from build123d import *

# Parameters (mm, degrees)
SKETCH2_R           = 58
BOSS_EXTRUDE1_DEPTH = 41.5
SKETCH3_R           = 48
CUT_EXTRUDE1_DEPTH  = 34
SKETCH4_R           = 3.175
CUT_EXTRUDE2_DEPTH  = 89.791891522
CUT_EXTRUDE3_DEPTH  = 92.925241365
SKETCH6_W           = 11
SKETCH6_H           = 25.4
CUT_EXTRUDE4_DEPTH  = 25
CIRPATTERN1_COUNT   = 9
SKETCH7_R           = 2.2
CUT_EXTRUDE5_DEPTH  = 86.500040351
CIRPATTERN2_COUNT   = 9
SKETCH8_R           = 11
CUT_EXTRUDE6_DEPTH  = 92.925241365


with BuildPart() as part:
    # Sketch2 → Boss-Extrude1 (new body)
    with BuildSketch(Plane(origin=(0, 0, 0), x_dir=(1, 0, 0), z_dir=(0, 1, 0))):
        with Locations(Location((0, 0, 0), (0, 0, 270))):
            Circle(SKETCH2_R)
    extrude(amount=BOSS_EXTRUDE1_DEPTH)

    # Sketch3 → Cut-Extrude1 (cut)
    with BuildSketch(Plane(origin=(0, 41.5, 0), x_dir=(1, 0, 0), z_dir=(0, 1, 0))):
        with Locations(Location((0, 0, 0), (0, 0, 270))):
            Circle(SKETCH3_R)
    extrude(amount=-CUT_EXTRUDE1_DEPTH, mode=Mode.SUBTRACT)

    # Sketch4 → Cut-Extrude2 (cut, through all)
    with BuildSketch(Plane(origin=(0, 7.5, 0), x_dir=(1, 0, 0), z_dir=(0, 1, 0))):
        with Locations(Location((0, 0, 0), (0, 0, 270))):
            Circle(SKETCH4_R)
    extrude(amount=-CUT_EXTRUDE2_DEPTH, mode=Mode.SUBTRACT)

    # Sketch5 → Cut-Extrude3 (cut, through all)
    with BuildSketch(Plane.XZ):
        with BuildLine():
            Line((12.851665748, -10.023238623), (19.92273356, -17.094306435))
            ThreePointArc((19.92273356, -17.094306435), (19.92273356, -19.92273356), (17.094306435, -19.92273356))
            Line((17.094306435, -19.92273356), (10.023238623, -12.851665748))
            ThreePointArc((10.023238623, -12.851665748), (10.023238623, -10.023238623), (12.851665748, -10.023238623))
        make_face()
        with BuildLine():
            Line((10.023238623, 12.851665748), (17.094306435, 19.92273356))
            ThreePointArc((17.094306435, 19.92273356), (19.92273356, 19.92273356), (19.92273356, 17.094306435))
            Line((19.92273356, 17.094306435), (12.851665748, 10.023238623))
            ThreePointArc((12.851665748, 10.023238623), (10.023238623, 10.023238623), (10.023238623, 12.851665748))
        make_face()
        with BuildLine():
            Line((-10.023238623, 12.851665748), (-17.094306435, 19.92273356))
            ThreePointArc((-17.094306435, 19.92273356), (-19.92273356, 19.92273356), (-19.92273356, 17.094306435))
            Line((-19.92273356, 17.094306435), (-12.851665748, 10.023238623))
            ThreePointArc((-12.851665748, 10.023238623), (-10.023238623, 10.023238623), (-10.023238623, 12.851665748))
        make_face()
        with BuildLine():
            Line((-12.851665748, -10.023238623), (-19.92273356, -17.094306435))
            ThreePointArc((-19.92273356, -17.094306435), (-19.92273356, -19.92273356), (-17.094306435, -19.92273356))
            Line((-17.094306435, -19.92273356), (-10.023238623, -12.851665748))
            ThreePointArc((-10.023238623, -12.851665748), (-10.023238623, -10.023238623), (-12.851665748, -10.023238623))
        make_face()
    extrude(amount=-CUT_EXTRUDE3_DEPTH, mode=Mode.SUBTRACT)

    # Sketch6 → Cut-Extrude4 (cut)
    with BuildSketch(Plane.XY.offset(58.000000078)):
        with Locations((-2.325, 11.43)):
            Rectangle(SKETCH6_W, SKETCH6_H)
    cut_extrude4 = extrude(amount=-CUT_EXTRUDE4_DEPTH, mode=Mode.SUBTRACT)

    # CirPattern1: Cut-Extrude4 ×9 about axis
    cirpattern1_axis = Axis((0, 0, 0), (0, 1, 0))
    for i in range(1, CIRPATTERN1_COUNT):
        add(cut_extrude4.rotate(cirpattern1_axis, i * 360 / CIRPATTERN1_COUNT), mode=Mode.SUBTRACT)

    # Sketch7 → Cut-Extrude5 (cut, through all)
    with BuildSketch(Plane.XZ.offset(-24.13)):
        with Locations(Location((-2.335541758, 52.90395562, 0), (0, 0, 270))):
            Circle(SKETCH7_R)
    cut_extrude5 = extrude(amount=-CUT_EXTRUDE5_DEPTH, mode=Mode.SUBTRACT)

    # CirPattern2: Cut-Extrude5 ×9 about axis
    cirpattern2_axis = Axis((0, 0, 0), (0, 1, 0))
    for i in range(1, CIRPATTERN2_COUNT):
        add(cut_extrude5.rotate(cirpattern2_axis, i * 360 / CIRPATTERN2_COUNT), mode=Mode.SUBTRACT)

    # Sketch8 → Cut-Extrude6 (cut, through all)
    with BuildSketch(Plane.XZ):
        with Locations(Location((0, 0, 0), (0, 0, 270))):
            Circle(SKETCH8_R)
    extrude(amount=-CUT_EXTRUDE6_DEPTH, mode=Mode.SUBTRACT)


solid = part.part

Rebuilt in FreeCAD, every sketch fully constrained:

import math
import FreeCAD as App
import Part
import Sketcher
from FreeCAD import Vector
Q = App.Units.Quantity


def add_polygon(sketch, points):
    """Adds a closed chain of lines whose ends are joined by coincident constraints."""
    first, n = sketch.GeometryCount, len(points)
    for a, b in zip(points, points[1:] + points[:1]):
        sketch.addGeometry(Part.LineSegment(App.Vector(*a, 0), App.Vector(*b, 0)), False)
    for i in range(n):
        sketch.addConstraint(Sketcher.Constraint("Coincident", first + i, 2, first + (i + 1) % n, 1))

doc = App.newDocument("Part")
body = doc.addObject("PartDesign::Body", "Body")

# Sketch on XZ plane
sketch1 = body.newObject("Sketcher::SketchObject", "Sketch")
sketch1.AttachmentSupport = (doc.getObject("XZ_Plane"), [""])
sketch1.MapMode = "FlatFace"
sketch1.addGeometry(Part.Circle(Vector(0, 0, 0), Vector(0, 0, 1), 58), False)
sketch1.addConstraint([
    Sketcher.Constraint("Coincident", 0, 3, -1, 1),
    Sketcher.Constraint("Diameter", 0, Q("116 mm")),
])
pad1 = body.newObject("PartDesign::Pad", "Pad")
pad1.Profile = sketch1
pad1.Length = 41.5
pad1.Reversed = True

# Sketch on XZ plane
sketch2 = body.newObject("Sketcher::SketchObject", "Sketch001")
sketch2.AttachmentSupport = (doc.getObject("XZ_Plane"), [""])
sketch2.MapMode = "FlatFace"
sketch2.AttachmentOffset = App.Placement(Vector(0, 0, -41.5), App.Rotation())
sketch2.addGeometry(Part.Circle(Vector(0, 0, 0), Vector(0, 0, 1), 48), False)
sketch2.addConstraint([
    Sketcher.Constraint("Coincident", 0, 3, -1, 1),
    Sketcher.Constraint("Diameter", 0, Q("96 mm")),
])
pocket1 = body.newObject("PartDesign::Pocket", "Pocket")
pocket1.Profile = sketch2
pocket1.Length = 34
pocket1.Reversed = True

# Sketch on XZ plane
sketch3 = body.newObject("Sketcher::SketchObject", "Sketch002")
sketch3.AttachmentSupport = (doc.getObject("XZ_Plane"), [""])
sketch3.MapMode = "FlatFace"
sketch3.AttachmentOffset = App.Placement(Vector(0, 0, -7.5), App.Rotation())
sketch3.addGeometry(Part.Circle(Vector(0, 0, 0), Vector(0, 0, 1), 3.2), False)
sketch3.addConstraint([
    Sketcher.Constraint("Coincident", 0, 3, -1, 1),
    Sketcher.Constraint("Diameter", 0, Q("6.35 mm")),
])
pocket2 = body.newObject("PartDesign::Pocket", "Pocket001")
pocket2.Profile = sketch3
pocket2.Type = "ThroughAll"
pocket2.Reversed = True

# Sketch on XZ plane
sketch4 = body.newObject("Sketcher::SketchObject", "Sketch003")
sketch4.AttachmentSupport = (doc.getObject("XZ_Plane"), [""])
sketch4.MapMode = "FlatFace"
sketch4.addGeometry([
    Part.LineSegment(Vector(19.9, -17.1, 0), Vector(12.9, -10, 0)),  # 0
    Part.ArcOfCircle(Part.Circle(Vector(11.4, -11.4, 0), Vector(0, 0, 1), 2), math.radians(45), math.radians(225)),  # 1
    Part.LineSegment(Vector(10, -12.9, 0), Vector(17.1, -19.9, 0)),  # 2
    Part.ArcOfCircle(Part.Circle(Vector(18.5, -18.5, 0), Vector(0, 0, 1), 2), math.radians(-135), math.radians(45)),  # 3
    Part.LineSegment(Vector(17.1, 19.9, 0), Vector(10, 12.9, 0)),  # 4
    Part.ArcOfCircle(Part.Circle(Vector(11.4, 11.4, 0), Vector(0, 0, 1), 2), math.radians(135), math.radians(315)),  # 5
    Part.LineSegment(Vector(12.9, 10, 0), Vector(19.9, 17.1, 0)),  # 6
    Part.ArcOfCircle(Part.Circle(Vector(18.5, 18.5, 0), Vector(0, 0, 1), 2), math.radians(-45), math.radians(135)),  # 7
    Part.LineSegment(Vector(-10, 12.9, 0), Vector(-17.1, 19.9, 0)),  # 8
    Part.ArcOfCircle(Part.Circle(Vector(-18.5, 18.5, 0), Vector(0, 0, 1), 2), math.radians(45), math.radians(225)),  # 9
    Part.LineSegment(Vector(-19.9, 17.1, 0), Vector(-12.9, 10, 0)),  # 10
    Part.ArcOfCircle(Part.Circle(Vector(-11.4, 11.4, 0), Vector(0, 0, 1), 2), math.radians(-135), math.radians(45)),  # 11
    Part.LineSegment(Vector(-12.9, -10, 0), Vector(-19.9, -17.1, 0)),  # 12
    Part.ArcOfCircle(Part.Circle(Vector(-18.5, -18.5, 0), Vector(0, 0, 1), 2), math.radians(135), math.radians(315)),  # 13
    Part.LineSegment(Vector(-17.1, -19.9, 0), Vector(-10, -12.9, 0)),  # 14
    Part.ArcOfCircle(Part.Circle(Vector(-11.4, -11.4, 0), Vector(0, 0, 1), 2), math.radians(-45), math.radians(135)),  # 15
], False)
sketch4.addConstraint([
    Sketcher.Constraint("Tangent", 0, 2, 1, 1),
    Sketcher.Constraint("Tangent", 1, 2, 2, 1),
    Sketcher.Constraint("Tangent", 2, 2, 3, 1),
    Sketcher.Constraint("Tangent", 3, 2, 0, 1),
    Sketcher.Constraint("Tangent", 4, 2, 5, 1),
    Sketcher.Constraint("Tangent", 5, 2, 6, 1),
    Sketcher.Constraint("Tangent", 6, 2, 7, 1),
    Sketcher.Constraint("Tangent", 7, 2, 4, 1),
    Sketcher.Constraint("Tangent", 8, 2, 9, 1),
    Sketcher.Constraint("Tangent", 9, 2, 10, 1),
    Sketcher.Constraint("Tangent", 10, 2, 11, 1),
    Sketcher.Constraint("Tangent", 11, 2, 8, 1),
    Sketcher.Constraint("Tangent", 12, 2, 13, 1),
    Sketcher.Constraint("Tangent", 13, 2, 14, 1),
    Sketcher.Constraint("Tangent", 14, 2, 15, 1),
    Sketcher.Constraint("Tangent", 15, 2, 12, 1),
    Sketcher.Constraint("Equal", 1, 3),
    Sketcher.Constraint("Equal", 3, 5),
    Sketcher.Constraint("Equal", 5, 7),
    Sketcher.Constraint("Equal", 7, 9),
    Sketcher.Constraint("Equal", 9, 11),
    Sketcher.Constraint("Equal", 11, 13),
    Sketcher.Constraint("Equal", 13, 15),
    Sketcher.Constraint("Symmetric", 3, 3, 9, 3, -1, 1),
    Sketcher.Constraint("Symmetric", 1, 3, 11, 3, -1, 1),
    Sketcher.Constraint("Symmetric", 7, 3, 13, 3, -1, 1),
    Sketcher.Constraint("Symmetric", 5, 3, 15, 3, -1, 1),
    Sketcher.Constraint("Symmetric", 7, 3, 9, 3, -2),
    Sketcher.Constraint("Symmetric", 5, 3, 11, 3, -2),
    Sketcher.Constraint("Perpendicular", 2, 4),
    Sketcher.Constraint("Radius", 1, Q("2 mm")),
    Sketcher.Constraint("Distance", 0, Q("10 mm")),
    Sketcher.Constraint("DistanceX", -1, 1, 3, 3, Q("18.50852 mm")),
    Sketcher.Constraint("DistanceY", 3, 3, -1, 1, Q("18.50852 mm")),
])
pocket3 = body.newObject("PartDesign::Pocket", "Pocket002")
pocket3.Profile = sketch4
pocket3.Type = "ThroughAll"

# Sketch on XY plane
sketch5 = body.newObject("Sketcher::SketchObject", "Sketch004")
sketch5.AttachmentSupport = (doc.getObject("XY_Plane"), [""])
sketch5.MapMode = "FlatFace"
sketch5.AttachmentOffset = App.Placement(Vector(0, 0, 58), App.Rotation())
add_polygon(sketch5, [(-8, 24), (-8, -1), (3, -1), (3, 24)])  # lines 0-3
sketch5.addConstraint([
    Sketcher.Constraint("Vertical", 0),
    Sketcher.Constraint("Horizontal", 1),
    Sketcher.Constraint("Vertical", 2),
    Sketcher.Constraint("Horizontal", 3),
    Sketcher.Constraint("DistanceX", 1, 1, 1, 2, Q("11 mm")),
    Sketcher.Constraint("DistanceY", 0, 2, 0, 1, Q("25.4 mm")),
    Sketcher.Constraint("DistanceY", 0, 2, -1, 1, Q("1.27 mm")),
    Sketcher.Constraint("DistanceX", 0, 2, -1, 1, Q("7.825 mm")),
])
pocket4 = body.newObject("PartDesign::Pocket", "Pocket003")
pocket4.Profile = sketch5
pocket4.Length = 25
doc.recompute()

polarpattern = body.newObject("PartDesign::PolarPattern", "PolarPattern")
polarpattern.Originals = [pocket4]
polarpattern.Axis = (doc.getObject("Y_Axis"), [""])
polarpattern.Angle = 360
polarpattern.Occurrences = 9
body.Tip = polarpattern

# Sketch on XZ plane
sketch6 = body.newObject("Sketcher::SketchObject", "Sketch005")
sketch6.AttachmentSupport = (doc.getObject("XZ_Plane"), [""])
sketch6.MapMode = "FlatFace"
sketch6.AttachmentOffset = App.Placement(Vector(0, 0, -24.13), App.Rotation())
sketch6.addGeometry(Part.Circle(Vector(-2.3, 52.9, 0), Vector(0, 0, 1), 2.2), False)
sketch6.addConstraint([
    Sketcher.Constraint("Diameter", 0, Q("4.4 mm")),
    Sketcher.Constraint("DistanceX", 0, 3, -1, 1, Q("2.335542 mm")),
    Sketcher.Constraint("DistanceY", -1, 1, 0, 3, Q("52.903956 mm")),
])
pocket5 = body.newObject("PartDesign::Pocket", "Pocket004")
pocket5.Profile = sketch6
pocket5.Type = "ThroughAll"
doc.recompute()

polarpattern2 = body.newObject("PartDesign::PolarPattern", "PolarPattern001")
polarpattern2.Originals = [pocket5]
polarpattern2.Axis = (doc.getObject("Y_Axis"), [""])
polarpattern2.Angle = 360
polarpattern2.Occurrences = 9
body.Tip = polarpattern2

# Sketch on XZ plane
sketch7 = body.newObject("Sketcher::SketchObject", "Sketch006")
sketch7.AttachmentSupport = (doc.getObject("XZ_Plane"), [""])
sketch7.MapMode = "FlatFace"
sketch7.addGeometry(Part.Circle(Vector(0, 0, 0), Vector(0, 0, 1), 11), False)
sketch7.addConstraint([
    Sketcher.Constraint("Coincident", 0, 3, -1, 1),
    Sketcher.Constraint("Diameter", 0, Q("22 mm")),
])
pocket6 = body.newObject("PartDesign::Pocket", "Pocket005")
pocket6.Profile = sketch7
pocket6.Type = "ThroughAll"

doc.recompute()
